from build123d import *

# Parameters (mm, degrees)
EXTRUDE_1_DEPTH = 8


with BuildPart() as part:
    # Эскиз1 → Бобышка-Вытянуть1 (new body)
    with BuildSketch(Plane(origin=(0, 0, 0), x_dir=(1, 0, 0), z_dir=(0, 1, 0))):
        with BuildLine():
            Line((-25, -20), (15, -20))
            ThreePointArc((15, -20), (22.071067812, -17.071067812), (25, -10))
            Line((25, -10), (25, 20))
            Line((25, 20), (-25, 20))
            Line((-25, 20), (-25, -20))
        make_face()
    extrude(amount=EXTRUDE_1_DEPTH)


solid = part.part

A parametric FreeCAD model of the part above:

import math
import FreeCAD as App
import Part
import Sketcher
Q = App.Units.Quantity

doc = App.newDocument("Part")
params = doc.addObject("Spreadsheet::Sheet", "Params")
for row, (alias, value) in enumerate([
    ("sketch1_radius", "10 mm"),
    ("sketch1_width", "40 mm"),
    ("pad1_length", "8 mm"),
], start=1):
    params.set(f"A{row}", alias)
    params.set(f"B{row}", "=" + value)
    params.setAlias(f"B{row}", alias)

body = doc.addObject("PartDesign::Body", "Body")

sketch1 = doc.addObject("Sketcher::SketchObject", "Sketch")
body.addObject(sketch1)
sketch1.AttachmentSupport = (doc.XZ_Plane, [""])
sketch1.MapMode = "FlatFace"
sketch1.addGeometry([
    Part.LineSegment(App.Vector(-25, 20, 0), App.Vector(15, 20, 0)),
    Part.ArcOfCircle(Part.Circle(App.Vector(15, 10, 0), App.Vector(0, 0, 1), 10), math.radians(0), math.radians(90)),
    Part.LineSegment(App.Vector(25, 10, 0), App.Vector(25, -20, 0)),
    Part.LineSegment(App.Vector(25, -20, 0), App.Vector(-25, -20, 0)),
    Part.LineSegment(App.Vector(-25, -20, 0), App.Vector(-25, 20, 0)),
], False)
sketch1.addConstraint([
    Sketcher.Constraint("Tangent", 0, 2, 1, 2),
    Sketcher.Constraint("Tangent", 1, 1, 2, 1),
    Sketcher.Constraint("Coincident", 2, 2, 3, 1),
    Sketcher.Constraint("Coincident", 3, 2, 4, 1),
    Sketcher.Constraint("Coincident", 4, 2, 0, 1),
    Sketcher.Constraint("Horizontal", 0),
    Sketcher.Constraint("Vertical", 2),
    Sketcher.Constraint("Horizontal", 3),
    Sketcher.Constraint("Vertical", 4),
    Sketcher.Constraint("Symmetric", 2, 2, 4, 2, -1, 1),
    Sketcher.Constraint("Equal", 0, 4),
    Sketcher.Constraint("Radius", 1, Q("10 mm")),
    Sketcher.Constraint("DistanceX", 0, 1, 0, 2, Q("40 mm")),
])
sketch1.setExpression("Constraints[11]", "Params.sketch1_radius")
sketch1.setExpression("Constraints[12]", "Params.sketch1_width")
pad1 = doc.addObject("PartDesign::Pad", "Pad")
body.addObject(pad1)
pad1.Profile = sketch1
pad1.setExpression("Length", "Params.pad1_length")
pad1.Reversed = True

doc.recompute()
